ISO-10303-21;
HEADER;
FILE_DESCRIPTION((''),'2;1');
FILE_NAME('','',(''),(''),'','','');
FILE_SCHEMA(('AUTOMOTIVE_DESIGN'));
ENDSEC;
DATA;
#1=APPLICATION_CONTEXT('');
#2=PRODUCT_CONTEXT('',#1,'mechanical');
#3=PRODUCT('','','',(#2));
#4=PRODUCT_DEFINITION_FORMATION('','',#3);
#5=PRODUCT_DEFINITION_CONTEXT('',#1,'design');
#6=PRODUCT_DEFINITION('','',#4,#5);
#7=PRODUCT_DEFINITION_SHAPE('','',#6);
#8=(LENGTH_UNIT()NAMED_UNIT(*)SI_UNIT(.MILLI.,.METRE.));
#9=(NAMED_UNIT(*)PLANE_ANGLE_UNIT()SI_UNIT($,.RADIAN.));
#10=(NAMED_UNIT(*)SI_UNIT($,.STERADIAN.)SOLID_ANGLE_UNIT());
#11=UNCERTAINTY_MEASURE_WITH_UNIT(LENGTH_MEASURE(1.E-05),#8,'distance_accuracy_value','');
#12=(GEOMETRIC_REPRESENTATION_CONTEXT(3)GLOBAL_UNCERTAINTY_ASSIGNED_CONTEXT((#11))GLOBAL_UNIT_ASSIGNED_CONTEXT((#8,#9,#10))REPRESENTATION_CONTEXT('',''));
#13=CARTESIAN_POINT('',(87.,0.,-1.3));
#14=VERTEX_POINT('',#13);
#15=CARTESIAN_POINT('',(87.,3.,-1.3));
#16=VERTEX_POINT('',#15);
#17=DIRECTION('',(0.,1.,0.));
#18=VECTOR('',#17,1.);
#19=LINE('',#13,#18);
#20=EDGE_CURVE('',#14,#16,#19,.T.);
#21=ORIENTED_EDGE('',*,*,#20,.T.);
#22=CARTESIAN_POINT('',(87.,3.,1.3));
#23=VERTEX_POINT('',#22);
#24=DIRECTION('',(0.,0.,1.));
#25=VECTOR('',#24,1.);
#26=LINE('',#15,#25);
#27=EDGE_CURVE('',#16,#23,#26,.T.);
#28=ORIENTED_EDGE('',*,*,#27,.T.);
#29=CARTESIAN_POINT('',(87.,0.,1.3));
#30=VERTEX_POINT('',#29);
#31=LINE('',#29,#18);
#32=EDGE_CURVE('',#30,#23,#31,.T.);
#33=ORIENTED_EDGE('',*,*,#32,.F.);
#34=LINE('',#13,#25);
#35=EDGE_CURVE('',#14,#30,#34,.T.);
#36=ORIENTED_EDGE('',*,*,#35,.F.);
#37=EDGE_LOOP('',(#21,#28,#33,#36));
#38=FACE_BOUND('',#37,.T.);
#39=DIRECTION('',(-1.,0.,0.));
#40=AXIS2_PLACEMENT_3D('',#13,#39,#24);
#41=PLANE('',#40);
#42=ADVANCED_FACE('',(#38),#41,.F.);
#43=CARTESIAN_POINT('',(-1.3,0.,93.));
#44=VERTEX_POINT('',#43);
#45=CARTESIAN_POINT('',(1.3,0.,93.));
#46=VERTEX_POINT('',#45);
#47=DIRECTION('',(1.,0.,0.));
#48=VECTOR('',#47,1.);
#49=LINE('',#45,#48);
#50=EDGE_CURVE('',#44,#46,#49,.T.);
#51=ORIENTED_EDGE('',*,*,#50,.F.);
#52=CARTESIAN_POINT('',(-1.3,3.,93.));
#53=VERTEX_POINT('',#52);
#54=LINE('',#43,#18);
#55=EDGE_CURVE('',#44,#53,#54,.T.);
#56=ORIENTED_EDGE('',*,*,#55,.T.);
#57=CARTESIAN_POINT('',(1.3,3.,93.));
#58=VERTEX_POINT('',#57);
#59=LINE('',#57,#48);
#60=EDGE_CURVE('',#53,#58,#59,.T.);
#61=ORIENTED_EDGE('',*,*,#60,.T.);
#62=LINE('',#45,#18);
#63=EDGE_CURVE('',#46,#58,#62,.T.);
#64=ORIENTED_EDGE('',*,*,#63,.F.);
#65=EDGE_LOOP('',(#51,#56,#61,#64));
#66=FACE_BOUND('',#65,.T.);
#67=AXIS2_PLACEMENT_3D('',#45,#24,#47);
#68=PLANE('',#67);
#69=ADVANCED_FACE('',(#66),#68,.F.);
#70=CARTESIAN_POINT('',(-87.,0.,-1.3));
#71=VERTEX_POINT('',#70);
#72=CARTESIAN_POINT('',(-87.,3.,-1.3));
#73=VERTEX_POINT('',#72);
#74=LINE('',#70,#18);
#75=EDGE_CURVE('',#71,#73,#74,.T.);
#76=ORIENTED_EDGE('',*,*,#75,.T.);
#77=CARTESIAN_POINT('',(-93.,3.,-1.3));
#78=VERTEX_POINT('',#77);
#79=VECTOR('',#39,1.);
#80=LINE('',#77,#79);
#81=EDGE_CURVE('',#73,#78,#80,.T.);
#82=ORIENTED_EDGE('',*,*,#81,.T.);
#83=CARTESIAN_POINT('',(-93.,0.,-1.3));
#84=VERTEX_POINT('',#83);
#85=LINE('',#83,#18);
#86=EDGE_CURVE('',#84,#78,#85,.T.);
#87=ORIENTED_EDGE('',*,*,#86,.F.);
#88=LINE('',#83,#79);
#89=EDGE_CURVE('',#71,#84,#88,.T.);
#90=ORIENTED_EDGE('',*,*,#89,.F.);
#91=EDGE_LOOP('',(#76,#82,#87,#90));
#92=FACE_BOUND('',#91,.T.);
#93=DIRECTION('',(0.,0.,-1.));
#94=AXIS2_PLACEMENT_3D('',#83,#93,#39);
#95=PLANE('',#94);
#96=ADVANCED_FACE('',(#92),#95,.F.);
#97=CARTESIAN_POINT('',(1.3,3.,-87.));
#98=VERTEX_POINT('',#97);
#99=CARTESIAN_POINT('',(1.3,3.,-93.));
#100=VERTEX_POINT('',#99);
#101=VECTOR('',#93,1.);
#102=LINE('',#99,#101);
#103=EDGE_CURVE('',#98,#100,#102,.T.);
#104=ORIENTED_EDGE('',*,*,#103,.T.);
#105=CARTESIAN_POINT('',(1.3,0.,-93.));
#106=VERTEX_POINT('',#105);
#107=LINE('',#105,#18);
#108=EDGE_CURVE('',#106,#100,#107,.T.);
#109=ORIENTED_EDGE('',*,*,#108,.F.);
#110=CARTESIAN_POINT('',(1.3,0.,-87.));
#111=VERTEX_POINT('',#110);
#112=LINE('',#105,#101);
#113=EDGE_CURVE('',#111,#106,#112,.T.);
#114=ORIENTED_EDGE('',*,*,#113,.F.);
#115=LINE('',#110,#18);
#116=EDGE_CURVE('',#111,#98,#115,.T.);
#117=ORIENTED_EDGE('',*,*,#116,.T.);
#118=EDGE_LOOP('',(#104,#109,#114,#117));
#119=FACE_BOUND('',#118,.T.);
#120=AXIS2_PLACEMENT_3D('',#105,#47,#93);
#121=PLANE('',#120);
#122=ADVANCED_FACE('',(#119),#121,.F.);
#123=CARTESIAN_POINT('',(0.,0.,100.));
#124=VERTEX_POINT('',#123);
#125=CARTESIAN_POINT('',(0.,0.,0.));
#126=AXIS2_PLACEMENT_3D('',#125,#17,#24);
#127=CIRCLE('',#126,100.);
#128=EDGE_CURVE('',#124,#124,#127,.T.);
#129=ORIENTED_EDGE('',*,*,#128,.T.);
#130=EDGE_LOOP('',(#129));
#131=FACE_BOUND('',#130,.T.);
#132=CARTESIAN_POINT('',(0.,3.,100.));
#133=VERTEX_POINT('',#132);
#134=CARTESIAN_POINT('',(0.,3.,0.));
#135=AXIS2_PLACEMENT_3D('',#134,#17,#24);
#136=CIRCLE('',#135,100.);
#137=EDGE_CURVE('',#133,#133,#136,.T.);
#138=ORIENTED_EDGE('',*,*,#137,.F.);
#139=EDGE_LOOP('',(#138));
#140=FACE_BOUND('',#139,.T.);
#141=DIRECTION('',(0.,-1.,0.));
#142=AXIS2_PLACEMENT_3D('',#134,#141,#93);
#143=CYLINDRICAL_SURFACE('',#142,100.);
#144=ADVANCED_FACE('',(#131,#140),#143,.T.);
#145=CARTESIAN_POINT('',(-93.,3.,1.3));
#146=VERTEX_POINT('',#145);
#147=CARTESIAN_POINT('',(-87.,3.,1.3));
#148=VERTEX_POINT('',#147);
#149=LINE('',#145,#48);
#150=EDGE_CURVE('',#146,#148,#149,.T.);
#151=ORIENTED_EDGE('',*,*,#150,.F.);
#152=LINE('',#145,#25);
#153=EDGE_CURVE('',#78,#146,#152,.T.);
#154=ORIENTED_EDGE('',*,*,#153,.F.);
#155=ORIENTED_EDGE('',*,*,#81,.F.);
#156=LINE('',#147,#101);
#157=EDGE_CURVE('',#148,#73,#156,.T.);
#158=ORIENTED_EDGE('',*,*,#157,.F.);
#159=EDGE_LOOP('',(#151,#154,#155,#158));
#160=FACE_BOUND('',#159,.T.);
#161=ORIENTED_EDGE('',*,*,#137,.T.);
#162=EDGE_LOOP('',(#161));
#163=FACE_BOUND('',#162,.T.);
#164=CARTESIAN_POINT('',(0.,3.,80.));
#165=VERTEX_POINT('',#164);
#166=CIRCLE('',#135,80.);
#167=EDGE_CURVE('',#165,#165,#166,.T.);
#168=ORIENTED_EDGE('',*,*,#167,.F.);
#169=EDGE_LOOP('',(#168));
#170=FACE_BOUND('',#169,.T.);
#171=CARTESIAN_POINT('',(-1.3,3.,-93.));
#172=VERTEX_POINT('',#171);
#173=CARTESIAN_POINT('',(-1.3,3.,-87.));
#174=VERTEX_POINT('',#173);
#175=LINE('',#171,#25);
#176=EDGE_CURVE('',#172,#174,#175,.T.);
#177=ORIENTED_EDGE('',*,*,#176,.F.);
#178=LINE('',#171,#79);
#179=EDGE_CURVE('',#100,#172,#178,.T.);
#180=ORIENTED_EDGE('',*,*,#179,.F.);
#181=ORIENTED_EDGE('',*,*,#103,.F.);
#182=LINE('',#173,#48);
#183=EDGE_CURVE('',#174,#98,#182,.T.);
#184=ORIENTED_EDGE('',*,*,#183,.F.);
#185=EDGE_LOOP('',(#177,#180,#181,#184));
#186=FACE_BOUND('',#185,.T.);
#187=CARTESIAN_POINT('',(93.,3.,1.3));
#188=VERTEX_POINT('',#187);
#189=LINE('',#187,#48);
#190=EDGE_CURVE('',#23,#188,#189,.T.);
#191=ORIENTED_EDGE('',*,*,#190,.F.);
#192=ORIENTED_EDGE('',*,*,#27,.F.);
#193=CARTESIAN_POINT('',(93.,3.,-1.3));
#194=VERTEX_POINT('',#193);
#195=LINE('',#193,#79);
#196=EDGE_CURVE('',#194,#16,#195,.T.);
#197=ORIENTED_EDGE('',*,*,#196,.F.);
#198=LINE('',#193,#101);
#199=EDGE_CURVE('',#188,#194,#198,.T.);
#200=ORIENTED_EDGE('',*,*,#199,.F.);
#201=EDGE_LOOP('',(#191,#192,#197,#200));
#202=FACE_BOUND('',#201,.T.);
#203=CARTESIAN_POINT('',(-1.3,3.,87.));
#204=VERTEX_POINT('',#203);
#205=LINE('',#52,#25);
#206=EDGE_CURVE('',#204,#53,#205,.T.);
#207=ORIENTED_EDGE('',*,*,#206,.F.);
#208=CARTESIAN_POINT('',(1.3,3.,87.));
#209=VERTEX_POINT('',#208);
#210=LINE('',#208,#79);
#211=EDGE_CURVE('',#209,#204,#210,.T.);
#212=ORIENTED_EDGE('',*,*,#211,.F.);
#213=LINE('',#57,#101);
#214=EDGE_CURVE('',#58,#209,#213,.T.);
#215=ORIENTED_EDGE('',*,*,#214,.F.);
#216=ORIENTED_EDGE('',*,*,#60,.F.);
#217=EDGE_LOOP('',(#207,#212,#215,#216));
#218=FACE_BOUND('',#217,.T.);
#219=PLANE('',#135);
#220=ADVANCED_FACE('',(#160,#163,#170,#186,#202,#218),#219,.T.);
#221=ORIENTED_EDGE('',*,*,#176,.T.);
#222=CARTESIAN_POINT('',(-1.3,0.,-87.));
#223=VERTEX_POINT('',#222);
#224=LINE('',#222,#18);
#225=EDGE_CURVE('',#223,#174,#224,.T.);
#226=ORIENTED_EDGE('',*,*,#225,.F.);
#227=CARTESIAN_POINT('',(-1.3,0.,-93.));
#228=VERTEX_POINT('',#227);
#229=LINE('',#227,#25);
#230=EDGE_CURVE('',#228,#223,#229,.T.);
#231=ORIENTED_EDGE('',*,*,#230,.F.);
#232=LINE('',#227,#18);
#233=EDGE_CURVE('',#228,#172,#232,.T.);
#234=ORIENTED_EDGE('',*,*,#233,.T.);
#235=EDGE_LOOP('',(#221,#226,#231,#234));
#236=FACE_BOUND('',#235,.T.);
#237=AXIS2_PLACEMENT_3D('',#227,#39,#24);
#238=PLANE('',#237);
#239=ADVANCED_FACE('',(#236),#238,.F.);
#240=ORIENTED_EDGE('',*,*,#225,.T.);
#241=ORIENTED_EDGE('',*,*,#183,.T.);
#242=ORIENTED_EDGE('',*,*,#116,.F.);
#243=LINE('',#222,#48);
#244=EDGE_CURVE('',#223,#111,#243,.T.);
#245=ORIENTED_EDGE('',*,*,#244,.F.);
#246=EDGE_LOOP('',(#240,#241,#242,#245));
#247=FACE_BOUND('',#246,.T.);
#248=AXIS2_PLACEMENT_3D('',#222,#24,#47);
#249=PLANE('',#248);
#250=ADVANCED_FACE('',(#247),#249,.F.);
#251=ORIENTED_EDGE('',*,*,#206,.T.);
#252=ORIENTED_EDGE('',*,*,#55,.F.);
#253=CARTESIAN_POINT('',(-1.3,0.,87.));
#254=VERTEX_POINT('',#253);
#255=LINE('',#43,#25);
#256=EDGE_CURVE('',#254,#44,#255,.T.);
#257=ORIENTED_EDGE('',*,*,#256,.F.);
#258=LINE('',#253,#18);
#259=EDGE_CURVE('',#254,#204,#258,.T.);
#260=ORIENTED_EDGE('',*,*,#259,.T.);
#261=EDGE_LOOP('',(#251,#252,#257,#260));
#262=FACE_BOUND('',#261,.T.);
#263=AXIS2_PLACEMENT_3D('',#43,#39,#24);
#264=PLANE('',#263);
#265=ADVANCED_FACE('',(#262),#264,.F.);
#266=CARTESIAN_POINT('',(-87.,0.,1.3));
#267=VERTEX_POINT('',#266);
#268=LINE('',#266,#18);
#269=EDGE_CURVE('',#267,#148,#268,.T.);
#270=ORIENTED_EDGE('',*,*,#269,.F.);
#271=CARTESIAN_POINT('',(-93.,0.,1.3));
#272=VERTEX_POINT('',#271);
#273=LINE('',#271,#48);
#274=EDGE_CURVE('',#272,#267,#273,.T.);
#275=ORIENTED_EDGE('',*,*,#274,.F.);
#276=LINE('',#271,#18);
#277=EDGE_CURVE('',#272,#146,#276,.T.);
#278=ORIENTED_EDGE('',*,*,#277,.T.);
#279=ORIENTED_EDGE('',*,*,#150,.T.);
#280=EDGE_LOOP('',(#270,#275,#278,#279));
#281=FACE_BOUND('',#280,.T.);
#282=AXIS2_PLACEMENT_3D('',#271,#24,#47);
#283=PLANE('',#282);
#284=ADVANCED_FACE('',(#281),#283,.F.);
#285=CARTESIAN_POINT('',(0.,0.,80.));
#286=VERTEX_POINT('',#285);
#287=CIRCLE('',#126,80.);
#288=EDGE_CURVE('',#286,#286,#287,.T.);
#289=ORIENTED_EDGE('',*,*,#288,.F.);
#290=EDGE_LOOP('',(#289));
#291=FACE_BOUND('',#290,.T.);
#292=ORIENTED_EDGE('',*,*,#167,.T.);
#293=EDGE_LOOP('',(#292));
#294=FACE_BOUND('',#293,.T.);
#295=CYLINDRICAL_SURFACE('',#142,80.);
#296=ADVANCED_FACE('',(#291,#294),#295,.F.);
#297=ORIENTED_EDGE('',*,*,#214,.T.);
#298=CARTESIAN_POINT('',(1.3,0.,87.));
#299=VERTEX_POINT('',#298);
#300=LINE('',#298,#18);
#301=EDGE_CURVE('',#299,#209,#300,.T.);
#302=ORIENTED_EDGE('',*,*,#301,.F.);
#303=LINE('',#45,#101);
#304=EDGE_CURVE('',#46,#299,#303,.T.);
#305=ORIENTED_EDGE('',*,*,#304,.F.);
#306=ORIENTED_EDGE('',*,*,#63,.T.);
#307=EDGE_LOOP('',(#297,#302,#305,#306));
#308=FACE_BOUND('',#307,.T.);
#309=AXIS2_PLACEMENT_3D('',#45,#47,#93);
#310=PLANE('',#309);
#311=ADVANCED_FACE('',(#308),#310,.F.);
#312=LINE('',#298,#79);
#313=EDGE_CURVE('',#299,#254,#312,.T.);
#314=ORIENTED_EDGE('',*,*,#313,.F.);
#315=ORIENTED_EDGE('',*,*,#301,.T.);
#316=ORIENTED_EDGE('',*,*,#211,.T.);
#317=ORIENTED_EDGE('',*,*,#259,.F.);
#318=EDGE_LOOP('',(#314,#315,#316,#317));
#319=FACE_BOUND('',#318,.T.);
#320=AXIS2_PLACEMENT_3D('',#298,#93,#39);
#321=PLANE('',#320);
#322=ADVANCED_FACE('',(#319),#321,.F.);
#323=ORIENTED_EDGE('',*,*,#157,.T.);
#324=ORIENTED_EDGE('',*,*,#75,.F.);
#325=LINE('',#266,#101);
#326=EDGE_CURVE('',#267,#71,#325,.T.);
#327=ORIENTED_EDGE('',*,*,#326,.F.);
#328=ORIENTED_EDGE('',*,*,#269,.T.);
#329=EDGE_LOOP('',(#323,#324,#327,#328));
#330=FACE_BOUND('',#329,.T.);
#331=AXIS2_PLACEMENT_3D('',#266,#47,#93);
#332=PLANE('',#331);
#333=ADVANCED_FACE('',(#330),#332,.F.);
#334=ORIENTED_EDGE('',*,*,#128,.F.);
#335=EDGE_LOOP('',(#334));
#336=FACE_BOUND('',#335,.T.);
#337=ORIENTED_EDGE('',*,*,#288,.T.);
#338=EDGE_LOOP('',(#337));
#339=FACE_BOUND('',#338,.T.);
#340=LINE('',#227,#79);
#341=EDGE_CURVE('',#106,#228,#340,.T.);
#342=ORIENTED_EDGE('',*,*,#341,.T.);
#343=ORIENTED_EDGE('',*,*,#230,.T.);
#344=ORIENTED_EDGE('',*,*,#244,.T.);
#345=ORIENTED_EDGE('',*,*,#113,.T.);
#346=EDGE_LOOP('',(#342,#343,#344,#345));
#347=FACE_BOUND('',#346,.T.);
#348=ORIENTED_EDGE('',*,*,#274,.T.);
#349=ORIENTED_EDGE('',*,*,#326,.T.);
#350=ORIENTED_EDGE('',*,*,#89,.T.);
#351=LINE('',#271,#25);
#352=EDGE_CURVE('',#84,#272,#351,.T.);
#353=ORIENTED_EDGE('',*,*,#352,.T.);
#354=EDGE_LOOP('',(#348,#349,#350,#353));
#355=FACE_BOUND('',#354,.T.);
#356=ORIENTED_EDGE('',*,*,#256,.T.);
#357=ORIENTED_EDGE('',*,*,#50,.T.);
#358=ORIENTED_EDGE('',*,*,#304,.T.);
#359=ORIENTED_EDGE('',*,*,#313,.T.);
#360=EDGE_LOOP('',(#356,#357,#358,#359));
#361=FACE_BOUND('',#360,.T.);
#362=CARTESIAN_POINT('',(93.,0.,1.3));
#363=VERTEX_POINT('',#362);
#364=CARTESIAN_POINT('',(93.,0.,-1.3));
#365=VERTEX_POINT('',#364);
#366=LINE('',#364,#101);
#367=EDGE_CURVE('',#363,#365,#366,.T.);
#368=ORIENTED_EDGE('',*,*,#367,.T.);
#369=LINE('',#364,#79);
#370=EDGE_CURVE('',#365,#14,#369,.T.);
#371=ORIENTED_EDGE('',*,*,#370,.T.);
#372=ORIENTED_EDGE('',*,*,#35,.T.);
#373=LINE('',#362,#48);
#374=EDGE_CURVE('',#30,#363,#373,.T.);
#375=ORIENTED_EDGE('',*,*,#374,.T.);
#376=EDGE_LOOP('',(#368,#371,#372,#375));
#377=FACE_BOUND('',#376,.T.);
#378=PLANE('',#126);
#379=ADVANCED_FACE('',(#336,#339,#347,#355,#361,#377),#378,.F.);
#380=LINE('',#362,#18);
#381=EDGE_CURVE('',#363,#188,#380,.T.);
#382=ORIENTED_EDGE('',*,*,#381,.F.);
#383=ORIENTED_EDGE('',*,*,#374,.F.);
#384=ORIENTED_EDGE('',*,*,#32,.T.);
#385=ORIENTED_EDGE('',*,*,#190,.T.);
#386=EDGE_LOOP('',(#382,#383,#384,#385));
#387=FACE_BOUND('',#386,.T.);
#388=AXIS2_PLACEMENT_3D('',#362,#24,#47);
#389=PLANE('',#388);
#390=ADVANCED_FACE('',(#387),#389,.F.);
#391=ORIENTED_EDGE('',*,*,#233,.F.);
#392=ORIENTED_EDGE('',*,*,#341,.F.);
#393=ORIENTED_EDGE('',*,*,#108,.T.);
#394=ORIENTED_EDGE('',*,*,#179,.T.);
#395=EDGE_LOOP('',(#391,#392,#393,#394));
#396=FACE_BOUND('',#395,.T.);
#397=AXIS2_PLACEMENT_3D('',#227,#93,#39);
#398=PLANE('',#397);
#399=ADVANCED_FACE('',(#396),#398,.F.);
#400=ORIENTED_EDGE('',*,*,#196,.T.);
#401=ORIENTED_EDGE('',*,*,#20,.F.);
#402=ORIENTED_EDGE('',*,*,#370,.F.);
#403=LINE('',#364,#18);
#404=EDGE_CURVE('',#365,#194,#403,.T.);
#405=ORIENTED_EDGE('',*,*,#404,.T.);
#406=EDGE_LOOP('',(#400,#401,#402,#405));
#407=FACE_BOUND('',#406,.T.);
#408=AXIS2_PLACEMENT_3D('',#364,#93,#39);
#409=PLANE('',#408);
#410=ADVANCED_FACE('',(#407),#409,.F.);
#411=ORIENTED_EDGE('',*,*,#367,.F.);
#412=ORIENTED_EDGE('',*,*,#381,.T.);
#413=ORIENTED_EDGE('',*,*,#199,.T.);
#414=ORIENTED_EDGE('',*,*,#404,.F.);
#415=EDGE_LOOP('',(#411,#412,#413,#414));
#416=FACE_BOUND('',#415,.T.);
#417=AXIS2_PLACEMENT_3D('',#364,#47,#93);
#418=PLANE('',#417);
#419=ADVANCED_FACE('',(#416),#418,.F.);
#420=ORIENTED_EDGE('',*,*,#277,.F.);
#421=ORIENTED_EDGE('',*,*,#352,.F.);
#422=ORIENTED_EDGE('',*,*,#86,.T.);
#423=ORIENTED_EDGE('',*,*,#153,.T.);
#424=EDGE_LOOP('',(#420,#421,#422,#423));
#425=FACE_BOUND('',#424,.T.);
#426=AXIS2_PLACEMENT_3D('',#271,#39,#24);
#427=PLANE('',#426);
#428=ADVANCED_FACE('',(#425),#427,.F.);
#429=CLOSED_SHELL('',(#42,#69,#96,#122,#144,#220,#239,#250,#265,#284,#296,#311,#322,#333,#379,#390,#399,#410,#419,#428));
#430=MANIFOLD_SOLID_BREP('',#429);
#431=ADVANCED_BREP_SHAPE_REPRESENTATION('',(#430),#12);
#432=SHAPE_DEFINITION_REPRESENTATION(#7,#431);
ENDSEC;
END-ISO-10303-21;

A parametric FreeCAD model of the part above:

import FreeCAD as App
import Part
import Sketcher


def add_polygon(sketch, points):
    """Adds a closed chain of lines whose ends are joined by coincident constraints."""
    first, n = sketch.GeometryCount, len(points)
    for a, b in zip(points, points[1:] + points[:1]):
        sketch.addGeometry(Part.LineSegment(App.Vector(*a, 0), App.Vector(*b, 0)), False)
    for i in range(n):
        sketch.addConstraint(Sketcher.Constraint("Coincident", first + i, 2, first + (i + 1) % n, 1))

doc = App.newDocument("Part")
body = doc.addObject("PartDesign::Body", "Body")

# Sketch on XZ plane
sketch1 = body.newObject("Sketcher::SketchObject", "Sketch")
sketch1.AttachmentSupport = (doc.getObject("XZ_Plane"), [""])
sketch1.MapMode = "FlatFace"
sketch1.addGeometry(Part.Circle(App.Vector(0, 0, 0), App.Vector(0, 0, 1), 100), False)
sketch1.addGeometry(Part.Circle(App.Vector(0, 0, 0), App.Vector(0, 0, 1), 80), False)
sketch1.addConstraint(Sketcher.Constraint("Coincident", 0, 3, -1, 1))
sketch1.addConstraint(Sketcher.Constraint("Coincident", 1, 3, -1, 1))
sketch1.addConstraint(Sketcher.Constraint("Diameter", 0, 200.0))
sketch1.addConstraint(Sketcher.Constraint("Diameter", 1, 160.0))
pad1 = body.newObject("PartDesign::Pad", "Pad")
pad1.Profile = sketch1
pad1.Length = 3
pad1.Reversed = True

# Sketch on XZ plane
sketch2 = body.newObject("Sketcher::SketchObject", "Sketch001")
sketch2.AttachmentSupport = (doc.getObject("XZ_Plane"), [""])
sketch2.MapMode = "FlatFace"
sketch2.AttachmentOffset = App.Placement(App.Vector(0, 0, -3), App.Rotation())
add_polygon(sketch2, [(-1.3, 87), (-1.3, 93), (1.3, 93), (1.3, 87)])  # lines 0-3
sketch2.addConstraint(Sketcher.Constraint("Vertical", 0))
sketch2.addConstraint(Sketcher.Constraint("Horizontal", 1))
sketch2.addConstraint(Sketcher.Constraint("Vertical", 2))
sketch2.addConstraint(Sketcher.Constraint("Horizontal", 3))
sketch2.addConstraint(Sketcher.Constraint("DistanceY", 0, 1, 0, 2, 6.0))
sketch2.addConstraint(Sketcher.Constraint("DistanceX", 1, 1, 1, 2, 2.6))
sketch2.addConstraint(Sketcher.Constraint("DistanceY", -1, 1, 0, 2, 93.0))
sketch2.addConstraint(Sketcher.Constraint("DistanceX", 0, 2, -1, 1, 1.3))
pocket1 = body.newObject("PartDesign::Pocket", "Pocket")
pocket1.Profile = sketch2
pocket1.Type = "ThroughAll"
pocket1.Reversed = True
doc.recompute()

polarpattern = body.newObject("PartDesign::PolarPattern", "PolarPattern")
polarpattern.Originals = [pocket1]
polarpattern.Axis = (doc.getObject("Y_Axis"), [""])
polarpattern.Angle = 360
polarpattern.Occurrences = 4
body.Tip = polarpattern

doc.recompute()
